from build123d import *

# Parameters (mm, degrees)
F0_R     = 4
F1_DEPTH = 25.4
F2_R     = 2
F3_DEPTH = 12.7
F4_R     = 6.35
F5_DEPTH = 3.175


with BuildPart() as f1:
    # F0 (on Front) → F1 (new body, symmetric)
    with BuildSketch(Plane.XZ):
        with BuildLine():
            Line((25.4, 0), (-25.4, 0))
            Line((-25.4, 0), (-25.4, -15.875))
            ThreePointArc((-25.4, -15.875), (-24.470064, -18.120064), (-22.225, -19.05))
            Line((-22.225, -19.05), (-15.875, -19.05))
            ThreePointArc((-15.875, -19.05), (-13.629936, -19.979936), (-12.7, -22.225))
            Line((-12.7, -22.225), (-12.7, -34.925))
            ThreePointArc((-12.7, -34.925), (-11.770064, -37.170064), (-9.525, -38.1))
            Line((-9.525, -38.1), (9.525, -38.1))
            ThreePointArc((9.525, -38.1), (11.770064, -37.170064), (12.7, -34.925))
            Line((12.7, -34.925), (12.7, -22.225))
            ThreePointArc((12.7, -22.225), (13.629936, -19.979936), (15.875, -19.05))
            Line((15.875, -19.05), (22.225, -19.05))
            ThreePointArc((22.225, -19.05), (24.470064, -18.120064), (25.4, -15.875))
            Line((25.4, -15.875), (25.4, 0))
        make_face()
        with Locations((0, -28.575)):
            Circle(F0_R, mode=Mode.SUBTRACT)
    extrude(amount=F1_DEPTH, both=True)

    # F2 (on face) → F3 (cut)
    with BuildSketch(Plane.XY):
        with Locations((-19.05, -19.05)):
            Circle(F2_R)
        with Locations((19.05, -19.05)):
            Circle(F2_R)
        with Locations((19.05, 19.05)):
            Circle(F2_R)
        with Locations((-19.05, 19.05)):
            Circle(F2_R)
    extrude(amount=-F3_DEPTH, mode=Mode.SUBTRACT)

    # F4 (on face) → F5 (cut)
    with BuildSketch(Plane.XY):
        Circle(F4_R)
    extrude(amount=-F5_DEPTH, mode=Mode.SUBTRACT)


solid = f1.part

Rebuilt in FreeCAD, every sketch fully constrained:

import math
import FreeCAD as App
import Part
import Sketcher
Q = App.Units.Quantity

doc = App.newDocument("Part")
body = doc.addObject("PartDesign::Body", "Body")

# Sketch on XZ plane
sketch1 = body.newObject("Sketcher::SketchObject", "Sketch")
sketch1.AttachmentSupport = (doc.getObject("XZ_Plane"), [""])
sketch1.MapMode = "FlatFace"
sketch1.addGeometry([
    Part.LineSegment(App.Vector(25.4, 0, 0), App.Vector(-25.4, 0, 0)),  # 0
    Part.LineSegment(App.Vector(-25.4, 0, 0), App.Vector(-25.4, -15.9, 0)),  # 1
    Part.ArcOfCircle(Part.Circle(App.Vector(-22.2, -15.9, 0), App.Vector(0, 0, 1), 3.2), math.radians(-180), math.radians(-90)),  # 2
    Part.LineSegment(App.Vector(-22.2, -19.1, 0), App.Vector(-15.9, -19.1, 0)),  # 3
    Part.ArcOfCircle(Part.Circle(App.Vector(-15.9, -22.2, 0), App.Vector(0, 0, 1), 3.2), math.radians(0), math.radians(90)),  # 4
    Part.LineSegment(App.Vector(-12.7, -22.2, 0), App.Vector(-12.7, -34.9, 0)),  # 5
    Part.ArcOfCircle(Part.Circle(App.Vector(-9.5, -34.9, 0), App.Vector(0, 0, 1), 3.2), math.radians(-180), math.radians(-90)),  # 6
    Part.LineSegment(App.Vector(-9.5, -38.1, 0), App.Vector(9.5, -38.1, 0)),  # 7
    Part.ArcOfCircle(Part.Circle(App.Vector(9.5, -34.9, 0), App.Vector(0, 0, 1), 3.2), math.radians(-90), math.radians(0)),  # 8
    Part.LineSegment(App.Vector(12.7, -34.9, 0), App.Vector(12.7, -22.2, 0)),  # 9
    Part.ArcOfCircle(Part.Circle(App.Vector(15.9, -22.2, 0), App.Vector(0, 0, 1), 3.2), math.radians(90), math.radians(180)),  # 10
    Part.LineSegment(App.Vector(15.9, -19.1, 0), App.Vector(22.2, -19.1, 0)),  # 11
    Part.ArcOfCircle(Part.Circle(App.Vector(22.2, -15.9, 0), App.Vector(0, 0, 1), 3.2), math.radians(-90), math.radians(0)),  # 12
    Part.LineSegment(App.Vector(25.4, -15.9, 0), App.Vector(25.4, 0, 0)),  # 13
    Part.Circle(App.Vector(0, -28.6, 0), App.Vector(0, 0, 1), 4),  # 14
], False)
sketch1.addConstraint([
    Sketcher.Constraint("Coincident", 0, 2, 1, 1),
    Sketcher.Constraint("Tangent", 1, 2, 2, 1),
    Sketcher.Constraint("Tangent", 2, 2, 3, 1),
    Sketcher.Constraint("Tangent", 3, 2, 4, 2),
    Sketcher.Constraint("Tangent", 4, 1, 5, 1),
    Sketcher.Constraint("Tangent", 5, 2, 6, 1),
    Sketcher.Constraint("Tangent", 6, 2, 7, 1),
    Sketcher.Constraint("Tangent", 7, 2, 8, 1),
    Sketcher.Constraint("Tangent", 8, 2, 9, 1),
    Sketcher.Constraint("Tangent", 9, 2, 10, 2),
    Sketcher.Constraint("Tangent", 10, 1, 11, 1),
    Sketcher.Constraint("Tangent", 11, 2, 12, 1),
    Sketcher.Constraint("Tangent", 12, 2, 13, 1),
    Sketcher.Constraint("Coincident", 13, 2, 0, 1),
    Sketcher.Constraint("Horizontal", 0),
    Sketcher.Constraint("Vertical", 1),
    Sketcher.Constraint("Horizontal", 3),
    Sketcher.Constraint("Vertical", 5),
    Sketcher.Constraint("Horizontal", 7),
    Sketcher.Constraint("Vertical", 9),
    Sketcher.Constraint("Horizontal", 11),
    Sketcher.Constraint("Vertical", 13),
    Sketcher.Constraint("Equal", 2, 4),
    Sketcher.Constraint("Equal", 4, 6),
    Sketcher.Constraint("Equal", 6, 8),
    Sketcher.Constraint("Equal", 8, 10),
    Sketcher.Constraint("Equal", 10, 12),
    Sketcher.Constraint("Symmetric", 0, 2, 13, 2, -1, 1),
    Sketcher.Constraint("Symmetric", 4, 3, 10, 3, -2),
    Sketcher.Constraint("PointOnObject", 14, 3, -2),
    Sketcher.Constraint("DistanceX", 0, 2, 0, 1, Q("2 in")),
    Sketcher.Constraint("DistanceY", 5, 2, 5, 1, Q("0.5 in")),
    Sketcher.Constraint("Radius", 2, Q("0.125 in")),
    Sketcher.Constraint("DistanceX", 4, 3, 8, 3, Q("1 in")),
    Sketcher.Constraint("DistanceY", 6, 2, -1, 1, Q("1.5 in")),
    Sketcher.Constraint("DistanceY", 14, 3, 2, 3, Q("0.5 in")),
    Sketcher.Constraint("Diameter", 14, 8.0),
])
pad1 = body.newObject("PartDesign::Pad", "Pad")
pad1.Profile = sketch1
pad1.Length = Q("2 in")
pad1.Midplane = True

# Sketch on XY plane
sketch2 = body.newObject("Sketcher::SketchObject", "Sketch001")
sketch2.AttachmentSupport = (doc.getObject("XY_Plane"), [""])
sketch2.MapMode = "FlatFace"
sketch2.addGeometry([
    Part.Circle(App.Vector(-19.1, -19.1, 0), App.Vector(0, 0, 1), 2),
    Part.Circle(App.Vector(19.1, -19.1, 0), App.Vector(0, 0, 1), 2),
    Part.Circle(App.Vector(19.1, 19.1, 0), App.Vector(0, 0, 1), 2),
    Part.Circle(App.Vector(-19.1, 19.1, 0), App.Vector(0, 0, 1), 2),
], False)
sketch2.addConstraint([
    Sketcher.Constraint("Equal", 0, 1),
    Sketcher.Constraint("Equal", 1, 2),
    Sketcher.Constraint("Equal", 2, 3),
    Sketcher.Constraint("Symmetric", 0, 3, 2, 3, -1, 1),
    Sketcher.Constraint("Symmetric", 1, 3, 3, 3, -1, 1),
    Sketcher.Constraint("Symmetric", 0, 3, 1, 3, -2),
    Sketcher.Constraint("DistanceX", 0, 3, 1, 3, Q("1.5 in")),
    Sketcher.Constraint("DistanceY", 1, 3, 2, 3, Q("1.5 in")),
    Sketcher.Constraint("Diameter", 0, 4.0),
])
pocket1 = body.newObject("PartDesign::Pocket", "Pocket")
pocket1.Profile = sketch2
pocket1.Length = Q("0.5 in")

# Sketch on XY plane
sketch3 = body.newObject("Sketcher::SketchObject", "Sketch002")
sketch3.AttachmentSupport = (doc.getObject("XY_Plane"), [""])
sketch3.MapMode = "FlatFace"
sketch3.addGeometry(Part.Circle(App.Vector(0, 0, 0), App.Vector(0, 0, 1), 6), False)
sketch3.addConstraint([
    Sketcher.Constraint("Coincident", 0, 3, -1, 1),
    Sketcher.Constraint("Diameter", 0, Q("0.5 in")),
])
pocket2 = body.newObject("PartDesign::Pocket", "Pocket001")
pocket2.Profile = sketch3
pocket2.Length = Q("0.125 in")

doc.recompute()
